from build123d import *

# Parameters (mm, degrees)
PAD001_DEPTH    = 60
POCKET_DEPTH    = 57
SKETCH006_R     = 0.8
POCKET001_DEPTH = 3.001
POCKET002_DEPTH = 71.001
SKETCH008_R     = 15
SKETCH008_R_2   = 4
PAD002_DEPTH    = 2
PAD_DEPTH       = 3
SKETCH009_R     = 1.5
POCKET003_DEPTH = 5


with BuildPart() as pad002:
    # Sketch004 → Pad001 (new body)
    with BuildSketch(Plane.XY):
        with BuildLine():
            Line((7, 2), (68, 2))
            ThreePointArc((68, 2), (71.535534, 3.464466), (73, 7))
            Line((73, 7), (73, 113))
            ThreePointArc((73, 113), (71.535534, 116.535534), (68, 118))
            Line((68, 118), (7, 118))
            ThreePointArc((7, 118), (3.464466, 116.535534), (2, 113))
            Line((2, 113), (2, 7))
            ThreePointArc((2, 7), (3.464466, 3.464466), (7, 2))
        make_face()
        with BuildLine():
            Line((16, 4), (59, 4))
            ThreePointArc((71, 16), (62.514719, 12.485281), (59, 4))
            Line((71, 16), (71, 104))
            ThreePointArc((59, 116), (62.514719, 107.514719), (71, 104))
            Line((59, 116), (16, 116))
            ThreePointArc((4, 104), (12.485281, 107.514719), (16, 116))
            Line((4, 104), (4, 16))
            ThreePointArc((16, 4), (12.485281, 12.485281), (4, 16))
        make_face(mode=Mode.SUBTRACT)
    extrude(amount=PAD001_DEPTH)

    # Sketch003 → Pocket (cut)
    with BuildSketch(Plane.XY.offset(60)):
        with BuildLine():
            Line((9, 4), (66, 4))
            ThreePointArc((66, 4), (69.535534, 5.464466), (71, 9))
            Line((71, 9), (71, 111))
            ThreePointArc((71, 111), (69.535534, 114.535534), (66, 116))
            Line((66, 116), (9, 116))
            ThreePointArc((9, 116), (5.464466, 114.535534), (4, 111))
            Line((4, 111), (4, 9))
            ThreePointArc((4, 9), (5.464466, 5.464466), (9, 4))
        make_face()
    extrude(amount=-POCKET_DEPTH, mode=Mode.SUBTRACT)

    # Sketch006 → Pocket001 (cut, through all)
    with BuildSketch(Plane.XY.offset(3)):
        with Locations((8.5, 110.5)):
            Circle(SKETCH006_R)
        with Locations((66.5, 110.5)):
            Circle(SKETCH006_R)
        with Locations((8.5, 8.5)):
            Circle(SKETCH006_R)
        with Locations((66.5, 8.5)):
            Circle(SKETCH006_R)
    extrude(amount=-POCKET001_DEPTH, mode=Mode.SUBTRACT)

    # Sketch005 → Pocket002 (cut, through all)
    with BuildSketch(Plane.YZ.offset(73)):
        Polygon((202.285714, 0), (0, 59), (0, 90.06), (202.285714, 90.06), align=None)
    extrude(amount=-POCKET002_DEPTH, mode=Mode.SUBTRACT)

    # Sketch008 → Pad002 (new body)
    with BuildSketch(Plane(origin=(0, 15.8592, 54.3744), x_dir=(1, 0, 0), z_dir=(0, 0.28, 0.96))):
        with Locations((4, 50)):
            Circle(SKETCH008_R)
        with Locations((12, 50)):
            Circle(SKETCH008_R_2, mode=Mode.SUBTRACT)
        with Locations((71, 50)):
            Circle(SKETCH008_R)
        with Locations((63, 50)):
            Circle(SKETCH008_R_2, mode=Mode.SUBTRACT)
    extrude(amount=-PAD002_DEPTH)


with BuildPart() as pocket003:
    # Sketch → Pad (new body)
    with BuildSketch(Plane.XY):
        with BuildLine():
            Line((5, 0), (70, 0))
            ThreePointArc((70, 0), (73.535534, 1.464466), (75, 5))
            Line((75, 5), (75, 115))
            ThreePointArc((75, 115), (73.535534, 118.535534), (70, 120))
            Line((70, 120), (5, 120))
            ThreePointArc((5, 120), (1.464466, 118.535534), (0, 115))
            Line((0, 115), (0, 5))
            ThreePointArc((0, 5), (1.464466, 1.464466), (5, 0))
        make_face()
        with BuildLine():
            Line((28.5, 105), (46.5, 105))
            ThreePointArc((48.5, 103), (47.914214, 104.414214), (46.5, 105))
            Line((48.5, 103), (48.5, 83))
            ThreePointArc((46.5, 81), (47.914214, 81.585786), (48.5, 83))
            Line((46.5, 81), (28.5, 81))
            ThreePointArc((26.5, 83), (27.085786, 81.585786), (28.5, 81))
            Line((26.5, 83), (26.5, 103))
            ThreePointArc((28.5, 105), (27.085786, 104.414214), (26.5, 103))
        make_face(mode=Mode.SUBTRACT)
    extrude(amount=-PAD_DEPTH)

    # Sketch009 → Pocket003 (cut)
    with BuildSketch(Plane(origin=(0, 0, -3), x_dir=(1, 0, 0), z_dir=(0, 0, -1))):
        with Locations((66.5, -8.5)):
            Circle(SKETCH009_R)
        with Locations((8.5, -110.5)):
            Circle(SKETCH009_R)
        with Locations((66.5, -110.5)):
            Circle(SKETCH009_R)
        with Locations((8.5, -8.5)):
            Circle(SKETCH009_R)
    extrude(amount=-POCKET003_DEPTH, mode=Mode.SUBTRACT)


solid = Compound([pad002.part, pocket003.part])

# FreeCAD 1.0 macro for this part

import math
import FreeCAD as App
import Part
import Sketcher
from FreeCAD import Vector
Q = App.Units.Quantity


def add_polygon(sketch, points):
    """Adds a closed chain of lines whose ends are joined by coincident constraints."""
    first, n = sketch.GeometryCount, len(points)
    for a, b in zip(points, points[1:] + points[:1]):
        sketch.addGeometry(Part.LineSegment(App.Vector(*a, 0), App.Vector(*b, 0)), False)
    for i in range(n):
        sketch.addConstraint(Sketcher.Constraint("Coincident", first + i, 2, first + (i + 1) % n, 1))

doc = App.newDocument("Part")
body = doc.addObject("PartDesign::Body", "Body")

sketch1 = body.newObject("Sketcher::SketchObject", "Sketch")
sketch1.AttachmentSupport = (doc.getObject("XY_Plane"), [""])
sketch1.MapMode = "FlatFace"
sketch1.addGeometry([
    Part.LineSegment(Vector(7, 2, 0), Vector(68, 2, 0)),
    Part.ArcOfCircle(Part.Circle(Vector(68, 7, 0), Vector(0, 0, 1), 5), math.radians(-90), math.radians(0)),
    Part.LineSegment(Vector(73, 7, 0), Vector(73, 113, 0)),
    Part.ArcOfCircle(Part.Circle(Vector(68, 113, 0), Vector(0, 0, 1), 5), math.radians(0), math.radians(90)),
    Part.LineSegment(Vector(68, 118, 0), Vector(7, 118, 0)),
    Part.ArcOfCircle(Part.Circle(Vector(7, 113, 0), Vector(0, 0, 1), 5), math.radians(90), math.radians(180)),
    Part.LineSegment(Vector(2, 113, 0), Vector(2, 7, 0)),
    Part.ArcOfCircle(Part.Circle(Vector(7, 7, 0), Vector(0, 0, 1), 5), math.radians(180), math.radians(270)),
    Part.LineSegment(Vector(59, 4, 0), Vector(16, 4, 0)),
    Part.ArcOfCircle(Part.Circle(Vector(4, 4, 0), Vector(0, 0, 1), 12), math.radians(0), math.radians(90)),
    Part.LineSegment(Vector(4, 16, 0), Vector(4, 104, 0)),
    Part.ArcOfCircle(Part.Circle(Vector(4, 116, 0), Vector(0, 0, 1), 12), math.radians(-90), math.radians(0)),
    Part.LineSegment(Vector(16, 116, 0), Vector(59, 116, 0)),
    Part.ArcOfCircle(Part.Circle(Vector(71, 116, 0), Vector(0, 0, 1), 12), math.radians(-180), math.radians(-90)),
    Part.LineSegment(Vector(71, 104, 0), Vector(71, 16, 0)),
    Part.ArcOfCircle(Part.Circle(Vector(71, 4, 0), Vector(0, 0, 1), 12), math.radians(90), math.radians(180)),
], False)
sketch1.addConstraint([
    Sketcher.Constraint("Tangent", 0, 2, 1, 1),
    Sketcher.Constraint("Tangent", 1, 2, 2, 1),
    Sketcher.Constraint("Tangent", 2, 2, 3, 1),
    Sketcher.Constraint("Tangent", 3, 2, 4, 1),
    Sketcher.Constraint("Tangent", 4, 2, 5, 1),
    Sketcher.Constraint("Tangent", 5, 2, 6, 1),
    Sketcher.Constraint("Tangent", 6, 2, 7, 1),
    Sketcher.Constraint("Tangent", 7, 2, 0, 1),
    Sketcher.Constraint("Coincident", 8, 2, 9, 1),
    Sketcher.Constraint("Coincident", 9, 2, 10, 1),
    Sketcher.Constraint("Coincident", 10, 2, 11, 1),
    Sketcher.Constraint("Coincident", 11, 2, 12, 1),
    Sketcher.Constraint("Coincident", 12, 2, 13, 1),
    Sketcher.Constraint("Coincident", 13, 2, 14, 1),
    Sketcher.Constraint("Coincident", 14, 2, 15, 1),
    Sketcher.Constraint("Coincident", 15, 2, 8, 1),
    Sketcher.Constraint("Horizontal", 0),
    Sketcher.Constraint("Vertical", 2),
    Sketcher.Constraint("Horizontal", 4),
    Sketcher.Constraint("Vertical", 6),
    Sketcher.Constraint("Horizontal", 8),
    Sketcher.Constraint("Vertical", 10),
    Sketcher.Constraint("Horizontal", 12),
    Sketcher.Constraint("Vertical", 14),
    Sketcher.Constraint("Equal", 1, 3),
    Sketcher.Constraint("Equal", 3, 5),
    Sketcher.Constraint("Equal", 5, 7),
    Sketcher.Constraint("Equal", 9, 11),
    Sketcher.Constraint("Equal", 11, 13),
    Sketcher.Constraint("Equal", 13, 15),
    Sketcher.Constraint("Horizontal", 11, 3, 13, 3),
    Sketcher.Constraint("Horizontal", 9, 3, 15, 3),
    Sketcher.Constraint("Horizontal", 15, 3, 8, 2),
    Sketcher.Constraint("Horizontal", 13, 3, 11, 2),
    Sketcher.Constraint("Vertical", 9, 3, 11, 3),
    Sketcher.Constraint("Vertical", 13, 3, 15, 3),
    Sketcher.Constraint("Vertical", 11, 3, 9, 2),
    Sketcher.Constraint("Vertical", 15, 3, 13, 2),
    Sketcher.Constraint("Radius", 1, Q("5 mm")),
    Sketcher.Constraint("Radius", 9, Q("12.000001 mm")),
    Sketcher.Constraint("DistanceX", 0, 1, 0, 2, Q("61 mm")),
    Sketcher.Constraint("DistanceX", 8, 2, 8, 1, Q("43 mm")),
    Sketcher.Constraint("DistanceY", 2, 1, 2, 2, Q("106 mm")),
    Sketcher.Constraint("DistanceY", 10, 1, 10, 2, Q("88 mm")),
    Sketcher.Constraint("DistanceX", -1, 1, 1, 3, Q("68 mm")),
    Sketcher.Constraint("DistanceY", -1, 1, 1, 3, Q("7 mm")),
    Sketcher.Constraint("DistanceX", -1, 1, 9, 3, Q("3.999999 mm")),
    Sketcher.Constraint("DistanceY", -1, 1, 9, 3, Q("3.999999 mm")),
])
pad1 = body.newObject("PartDesign::Pad", "Pad")
pad1.Profile = sketch1
pad1.Length = 60

sketch2 = body.newObject("Sketcher::SketchObject", "Sketch001")
sketch2.AttachmentSupport = (doc.getObject("XY_Plane"), [""])
sketch2.MapMode = "FlatFace"
sketch2.AttachmentOffset = App.Placement(Vector(0, 0, 60), App.Rotation())
sketch2.addGeometry([
    Part.LineSegment(Vector(9, 4, 0), Vector(66, 4, 0)),
    Part.ArcOfCircle(Part.Circle(Vector(66, 9, 0), Vector(0, 0, 1), 5), math.radians(-90), math.radians(0)),
    Part.LineSegment(Vector(71, 9, 0), Vector(71, 111, 0)),
    Part.ArcOfCircle(Part.Circle(Vector(66, 111, 0), Vector(0, 0, 1), 5), math.radians(0), math.radians(90)),
    Part.LineSegment(Vector(66, 116, 0), Vector(9, 116, 0)),
    Part.ArcOfCircle(Part.Circle(Vector(9, 111, 0), Vector(0, 0, 1), 5), math.radians(90), math.radians(180)),
    Part.LineSegment(Vector(4, 111, 0), Vector(4, 9, 0)),
    Part.ArcOfCircle(Part.Circle(Vector(9, 9, 0), Vector(0, 0, 1), 5), math.radians(180), math.radians(270)),
], False)
sketch2.addConstraint([
    Sketcher.Constraint("Tangent", 0, 2, 1, 1),
    Sketcher.Constraint("Tangent", 1, 2, 2, 1),
    Sketcher.Constraint("Tangent", 2, 2, 3, 1),
    Sketcher.Constraint("Tangent", 3, 2, 4, 1),
    Sketcher.Constraint("Tangent", 4, 2, 5, 1),
    Sketcher.Constraint("Tangent", 5, 2, 6, 1),
    Sketcher.Constraint("Tangent", 6, 2, 7, 1),
    Sketcher.Constraint("Tangent", 7, 2, 0, 1),
    Sketcher.Constraint("Horizontal", 0),
    Sketcher.Constraint("Vertical", 2),
    Sketcher.Constraint("Horizontal", 4),
    Sketcher.Constraint("Vertical", 6),
    Sketcher.Constraint("Equal", 1, 3),
    Sketcher.Constraint("Equal", 3, 5),
    Sketcher.Constraint("Equal", 5, 7),
    Sketcher.Constraint("Radius", 1, Q("5 mm")),
    Sketcher.Constraint("DistanceX", 0, 1, 0, 2, Q("57 mm")),
    Sketcher.Constraint("DistanceY", 2, 1, 2, 2, Q("102 mm")),
    Sketcher.Constraint("DistanceX", -1, 1, 1, 3, Q("66 mm")),
    Sketcher.Constraint("DistanceY", -1, 1, 1, 3, Q("9 mm")),
])
pocket1 = body.newObject("PartDesign::Pocket", "Pocket")
pocket1.Profile = sketch2
pocket1.Length = 57

sketch3 = body.newObject("Sketcher::SketchObject", "Sketch002")
sketch3.AttachmentSupport = (doc.getObject("XY_Plane"), [""])
sketch3.MapMode = "FlatFace"
sketch3.AttachmentOffset = App.Placement(Vector(0, 0, 3), App.Rotation())
sketch3.addGeometry([
    Part.Circle(Vector(8.5, 110.5, 0), Vector(0, 0, 1), 0.8),
    Part.Circle(Vector(66.5, 110.5, 0), Vector(0, 0, 1), 0.8),
    Part.Circle(Vector(8.5, 8.5, 0), Vector(0, 0, 1), 0.8),
    Part.Circle(Vector(66.5, 8.5, 0), Vector(0, 0, 1), 0.8),
], False)
sketch3.addConstraint([
    Sketcher.Constraint("Equal", 0, 1),
    Sketcher.Constraint("Equal", 1, 2),
    Sketcher.Constraint("Equal", 2, 3),
    Sketcher.Constraint("Horizontal", 0, 3, 1, 3),
    Sketcher.Constraint("Horizontal", 2, 3, 3, 3),
    Sketcher.Constraint("Vertical", 0, 3, 2, 3),
    Sketcher.Constraint("Vertical", 1, 3, 3, 3),
    Sketcher.Constraint("Diameter", 0, Q("1.6 mm")),
    Sketcher.Constraint("DistanceX", 0, 3, 1, 3, Q("58 mm")),
    Sketcher.Constraint("DistanceY", 2, 3, 0, 3, Q("102 mm")),
    Sketcher.Constraint("DistanceX", -1, 1, 0, 3, Q("8.5 mm")),
    Sketcher.Constraint("DistanceY", -1, 1, 0, 3, Q("110.5 mm")),
])
pocket2 = body.newObject("PartDesign::Pocket", "Pocket001")
pocket2.Profile = sketch3
pocket2.Type = "ThroughAll"

sketch4 = body.newObject("Sketcher::SketchObject", "Sketch003")
sketch4.AttachmentSupport = (doc.getObject("YZ_Plane"), [""])
sketch4.MapMode = "FlatFace"
sketch4.AttachmentOffset = App.Placement(Vector(0, 0, 73), App.Rotation())
add_polygon(sketch4, [(0, 59), (202, 0), (202, 90), (0, 90)])
sketch4.addConstraint([
    Sketcher.Constraint("Vertical", 1),
    Sketcher.Constraint("Horizontal", 2),
    Sketcher.Constraint("Vertical", 3),
    Sketcher.Constraint("PointOnObject", 0, 2, -1),
    Sketcher.Constraint("PointOnObject", 2, 2, -2),
    Sketcher.Constraint("DistanceY", -1, 1, 3, 2, Q("59 mm")),
    Sketcher.Constraint("DistanceY", 1, 1, 1, 2, Q("90.06 mm")),
    Sketcher.Constraint("DistanceX", 2, 2, 2, 1, Q("202.285714 mm")),
])
pocket3 = body.newObject("PartDesign::Pocket", "Pocket002")
pocket3.Profile = sketch4
pocket3.Type = "ThroughAll"

sketch5 = body.newObject("Sketcher::SketchObject", "Sketch004")
sketch5.Placement = App.Placement(Vector(0, 15.8592, 54.3744), App.Rotation(Vector(1, 0, 0), Vector(0, 0.96, -0.28), Vector(0, 0.28, 0.96), "ZXY"))
sketch5.addGeometry([
    Part.Circle(Vector(4, 50, 0), Vector(0, 0, 1), 15),
    Part.Circle(Vector(12, 50, 0), Vector(0, 0, 1), 4),
    Part.Circle(Vector(71, 50, 0), Vector(0, 0, 1), 15),
    Part.Circle(Vector(63, 50, 0), Vector(0, 0, 1), 4),
], False)
sketch5.addConstraint([
    Sketcher.Constraint("Equal", 0, 2),
    Sketcher.Constraint("Equal", 1, 3),
    Sketcher.Constraint("Horizontal", 0, 3, 1, 3),
    Sketcher.Constraint("Horizontal", 1, 3, 2, 3),
    Sketcher.Constraint("Horizontal", 2, 3, 3, 3),
    Sketcher.Constraint("Diameter", 0, Q("30 mm")),
    Sketcher.Constraint("Diameter", 1, Q("8 mm")),
    Sketcher.Constraint("DistanceX", -1, 1, 0, 3, Q("4 mm")),
    Sketcher.Constraint("DistanceY", -1, 1, 0, 3, Q("50 mm")),
    Sketcher.Constraint("DistanceX", -1, 1, 1, 3, Q("12 mm")),
    Sketcher.Constraint("DistanceX", -1, 1, 2, 3, Q("71 mm")),
    Sketcher.Constraint("DistanceX", -1, 1, 3, 3, Q("63 mm")),
])
pad2 = body.newObject("PartDesign::Pad", "Pad001")
pad2.Profile = sketch5
pad2.Length = 2
pad2.Reversed = True
body2 = doc.addObject("PartDesign::Body", "Body001")

sketch6 = body2.newObject("Sketcher::SketchObject", "Sketch005")
sketch6.AttachmentSupport = (doc.getObject("XY_Plane001"), [""])
sketch6.MapMode = "FlatFace"
sketch6.addGeometry([
    Part.LineSegment(Vector(5, 0, 0), Vector(70, 0, 0)),
    Part.ArcOfCircle(Part.Circle(Vector(70, 5, 0), Vector(0, 0, 1), 5), math.radians(-90), math.radians(0)),
    Part.LineSegment(Vector(75, 5, 0), Vector(75, 115, 0)),
    Part.ArcOfCircle(Part.Circle(Vector(70, 115, 0), Vector(0, 0, 1), 5), math.radians(0), math.radians(90)),
    Part.LineSegment(Vector(70, 120, 0), Vector(5, 120, 0)),
    Part.ArcOfCircle(Part.Circle(Vector(5, 115, 0), Vector(0, 0, 1), 5), math.radians(90), math.radians(180)),
    Part.LineSegment(Vector(0, 115, 0), Vector(0, 5, 0)),
    Part.ArcOfCircle(Part.Circle(Vector(5, 5, 0), Vector(0, 0, 1), 5), math.radians(180), math.radians(270)),
    Part.ArcOfCircle(Part.Circle(Vector(28.5, 103, 0), Vector(0, 0, 1), 2), math.radians(90), math.radians(180)),
    Part.LineSegment(Vector(28.5, 105, 0), Vector(46.5, 105, 0)),
    Part.ArcOfCircle(Part.Circle(Vector(46.5, 103, 0), Vector(0, 0, 1), 2), math.radians(0), math.radians(90)),
    Part.LineSegment(Vector(48.5, 103, 0), Vector(48.5, 83, 0)),
    Part.ArcOfCircle(Part.Circle(Vector(46.5, 83, 0), Vector(0, 0, 1), 2), math.radians(-90), math.radians(0)),
    Part.LineSegment(Vector(46.5, 81, 0), Vector(28.5, 81, 0)),
    Part.ArcOfCircle(Part.Circle(Vector(28.5, 83, 0), Vector(0, 0, 1), 2), math.radians(180), math.radians(270)),
    Part.LineSegment(Vector(26.5, 83, 0), Vector(26.5, 103, 0)),
], False)
sketch6.addConstraint([
    Sketcher.Constraint("Tangent", 0, 2, 1, 1),
    Sketcher.Constraint("Tangent", 1, 2, 2, 1),
    Sketcher.Constraint("Tangent", 2, 2, 3, 1),
    Sketcher.Constraint("Tangent", 3, 2, 4, 1),
    Sketcher.Constraint("Tangent", 4, 2, 5, 1),
    Sketcher.Constraint("Tangent", 5, 2, 6, 1),
    Sketcher.Constraint("Tangent", 6, 2, 7, 1),
    Sketcher.Constraint("Tangent", 7, 2, 0, 1),
    Sketcher.Constraint("Tangent", 8, 1, 9, 1),
    Sketcher.Constraint("Tangent", 9, 2, 10, 2),
    Sketcher.Constraint("Tangent", 10, 1, 11, 1),
    Sketcher.Constraint("Tangent", 11, 2, 12, 2),
    Sketcher.Constraint("Tangent", 12, 1, 13, 1),
    Sketcher.Constraint("Tangent", 13, 2, 14, 2),
    Sketcher.Constraint("Tangent", 14, 1, 15, 1),
    Sketcher.Constraint("Tangent", 15, 2, 8, 2),
    Sketcher.Constraint("Horizontal", 0),
    Sketcher.Constraint("Vertical", 2),
    Sketcher.Constraint("Horizontal", 4),
    Sketcher.Constraint("Vertical", 6),
    Sketcher.Constraint("Horizontal", 9),
    Sketcher.Constraint("Vertical", 11),
    Sketcher.Constraint("Horizontal", 13),
    Sketcher.Constraint("Vertical", 15),
    Sketcher.Constraint("Equal", 1, 3),
    Sketcher.Constraint("Equal", 3, 5),
    Sketcher.Constraint("Equal", 5, 7),
    Sketcher.Constraint("Equal", 8, 10),
    Sketcher.Constraint("Equal", 10, 12),
    Sketcher.Constraint("Equal", 12, 14),
    Sketcher.Constraint("PointOnObject", 0, 2, -1),
    Sketcher.Constraint("PointOnObject", 5, 2, -2),
    Sketcher.Constraint("Radius", 1, Q("5 mm")),
    Sketcher.Constraint("Radius", 8, Q("1.999999 mm")),
    Sketcher.Constraint("DistanceX", 0, 1, 0, 2, Q("65 mm")),
    Sketcher.Constraint("DistanceX", 9, 1, 9, 2, Q("18 mm")),
    Sketcher.Constraint("DistanceY", 2, 1, 2, 2, Q("110 mm")),
    Sketcher.Constraint("DistanceY", 11, 2, 11, 1, Q("20 mm")),
    Sketcher.Constraint("DistanceY", -1, 1, 8, 3, Q("103.000001 mm")),
    Sketcher.Constraint("DistanceX", -1, 1, 8, 3, Q("28.499999 mm")),
])
pad3 = body2.newObject("PartDesign::Pad", "Pad002")
pad3.Profile = sketch6
pad3.Length = 3
pad3.Reversed = True

sketch7 = body2.newObject("Sketcher::SketchObject", "Sketch006")
sketch7.AttachmentSupport = (doc.getObject("XY_Plane001"), [""])
sketch7.MapMode = "FlatFace"
sketch7.AttachmentOffset = App.Placement(Vector(0, 0, -3), App.Rotation())
sketch7.addGeometry([
    Part.Circle(Vector(66.5, 8.5, 0), Vector(0, 0, 1), 1.5),
    Part.Circle(Vector(8.5, 110.5, 0), Vector(0, 0, 1), 1.5),
    Part.Circle(Vector(66.5, 110.5, 0), Vector(0, 0, 1), 1.5),
    Part.Circle(Vector(8.5, 8.5, 0), Vector(0, 0, 1), 1.5),
], False)
sketch7.addConstraint([
    Sketcher.Constraint("Equal", 0, 1),
    Sketcher.Constraint("Equal", 1, 2),
    Sketcher.Constraint("Equal", 2, 3),
    Sketcher.Constraint("Horizontal", 1, 3, 2, 3),
    Sketcher.Constraint("Horizontal", 0, 3, 3, 3),
    Sketcher.Constraint("Vertical", 0, 3, 2, 3),
    Sketcher.Constraint("Vertical", 1, 3, 3, 3),
    Sketcher.Constraint("Diameter", 0, Q("3 mm")),
    Sketcher.Constraint("DistanceX", 1, 3, 0, 3, Q("58 mm")),
    Sketcher.Constraint("DistanceY", 0, 3, 1, 3, Q("102 mm")),
    Sketcher.Constraint("DistanceX", -1, 1, 0, 3, Q("66.5 mm")),
    Sketcher.Constraint("DistanceY", -1, 1, 0, 3, Q("8.5 mm")),
])
pocket4 = body2.newObject("PartDesign::Pocket", "Pocket003")
pocket4.Profile = sketch7
pocket4.Length = 5
pocket4.Reversed = True

doc.recompute()
